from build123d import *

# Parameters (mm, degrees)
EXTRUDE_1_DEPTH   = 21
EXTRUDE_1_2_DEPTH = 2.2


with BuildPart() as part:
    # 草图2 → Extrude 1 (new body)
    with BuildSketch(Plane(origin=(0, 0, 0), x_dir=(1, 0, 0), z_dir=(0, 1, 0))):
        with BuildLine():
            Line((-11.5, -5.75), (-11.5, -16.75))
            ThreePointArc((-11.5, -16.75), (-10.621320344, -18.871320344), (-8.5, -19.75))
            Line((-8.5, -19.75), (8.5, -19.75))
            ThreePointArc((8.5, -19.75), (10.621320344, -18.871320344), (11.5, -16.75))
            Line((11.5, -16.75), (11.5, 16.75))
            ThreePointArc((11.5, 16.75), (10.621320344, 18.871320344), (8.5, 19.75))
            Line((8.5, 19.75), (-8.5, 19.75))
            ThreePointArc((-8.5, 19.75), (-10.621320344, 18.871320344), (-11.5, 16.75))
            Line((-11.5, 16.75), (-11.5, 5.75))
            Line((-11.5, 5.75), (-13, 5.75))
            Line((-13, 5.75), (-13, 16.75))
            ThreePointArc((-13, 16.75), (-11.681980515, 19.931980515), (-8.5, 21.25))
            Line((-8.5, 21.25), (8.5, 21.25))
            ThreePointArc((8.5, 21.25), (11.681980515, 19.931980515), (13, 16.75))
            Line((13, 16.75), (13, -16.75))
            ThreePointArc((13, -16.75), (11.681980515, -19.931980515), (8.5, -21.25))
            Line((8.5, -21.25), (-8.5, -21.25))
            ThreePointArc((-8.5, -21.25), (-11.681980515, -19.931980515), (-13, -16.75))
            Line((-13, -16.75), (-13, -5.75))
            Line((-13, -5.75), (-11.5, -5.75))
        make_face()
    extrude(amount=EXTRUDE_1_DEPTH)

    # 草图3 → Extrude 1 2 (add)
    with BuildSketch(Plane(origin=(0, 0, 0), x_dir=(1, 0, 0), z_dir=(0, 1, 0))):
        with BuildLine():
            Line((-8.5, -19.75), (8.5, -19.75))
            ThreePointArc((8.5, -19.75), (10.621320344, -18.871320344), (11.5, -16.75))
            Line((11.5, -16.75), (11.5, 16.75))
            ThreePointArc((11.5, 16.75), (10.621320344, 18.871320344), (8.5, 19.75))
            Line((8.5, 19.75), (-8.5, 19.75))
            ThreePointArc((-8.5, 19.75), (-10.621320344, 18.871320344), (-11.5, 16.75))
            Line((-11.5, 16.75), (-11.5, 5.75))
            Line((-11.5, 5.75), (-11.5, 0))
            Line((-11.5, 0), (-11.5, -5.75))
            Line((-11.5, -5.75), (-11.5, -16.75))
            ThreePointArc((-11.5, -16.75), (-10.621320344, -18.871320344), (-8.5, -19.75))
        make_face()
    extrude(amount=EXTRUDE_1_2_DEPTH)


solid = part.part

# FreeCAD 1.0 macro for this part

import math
import FreeCAD as App
import Part
import Sketcher

V = App.Vector
Q = App.Units.Quantity

doc = App.newDocument("Part")
body = doc.addObject("PartDesign::Body", "Body")

# Sketch on XZ plane
sketch1 = body.newObject("Sketcher::SketchObject", "Sketch")
sketch1.AttachmentSupport = (doc.getObject("XZ_Plane"), [""])
sketch1.MapMode = "FlatFace"
sketch1.addGeometry(Part.LineSegment(V(-11.5, 16.8, 0), V(-11.5, 5.8, 0)), False)
sketch1.addGeometry(Part.LineSegment(V(-11.5, 5.8, 0), V(-13, 5.8, 0)), False)
sketch1.addGeometry(Part.LineSegment(V(-13, 5.8, 0), V(-13, 16.8, 0)), False)
sketch1.addGeometry(Part.ArcOfCircle(Part.Circle(V(-8.5, 16.7, 0), V(0, 0, 1), 4.5), math.radians(90), math.radians(180)), False)
sketch1.addGeometry(Part.LineSegment(V(-8.5, 21.2, 0), V(8.5, 21.2, 0)), False)
sketch1.addGeometry(Part.ArcOfCircle(Part.Circle(V(8.5, 16.7, 0), V(0, 0, 1), 4.5), math.radians(0), math.radians(90)), False)
sketch1.addGeometry(Part.LineSegment(V(13, 16.8, 0), V(13, -16.8, 0)), False)
sketch1.addGeometry(Part.ArcOfCircle(Part.Circle(V(8.5, -16.7, 0), V(0, 0, 1), 4.5), math.radians(-90), math.radians(0)), False)
sketch1.addGeometry(Part.LineSegment(V(8.5, -21.2, 0), V(-8.5, -21.2, 0)), False)
sketch1.addGeometry(Part.ArcOfCircle(Part.Circle(V(-8.5, -16.7, 0), V(0, 0, 1), 4.5), math.radians(-180), math.radians(-90)), False)
sketch1.addGeometry(Part.LineSegment(V(-13, -16.8, 0), V(-13, -5.8, 0)), False)
sketch1.addGeometry(Part.LineSegment(V(-13, -5.8, 0), V(-11.5, -5.8, 0)), False)
sketch1.addGeometry(Part.LineSegment(V(-11.5, -5.8, 0), V(-11.5, -16.8, 0)), False)
sketch1.addGeometry(Part.ArcOfCircle(Part.Circle(V(-8.5, -16.8, 0), V(0, 0, 1), 3), math.radians(180), math.radians(270)), False)
sketch1.addGeometry(Part.LineSegment(V(-8.5, -19.8, 0), V(8.5, -19.8, 0)), False)
sketch1.addGeometry(Part.ArcOfCircle(Part.Circle(V(8.5, -16.8, 0), V(0, 0, 1), 3), math.radians(-90), math.radians(0)), False)
sketch1.addGeometry(Part.LineSegment(V(11.5, -16.8, 0), V(11.5, 16.8, 0)), False)
sketch1.addGeometry(Part.ArcOfCircle(Part.Circle(V(8.5, 16.8, 0), V(0, 0, 1), 3), math.radians(0), math.radians(90)), False)
sketch1.addGeometry(Part.LineSegment(V(8.5, 19.8, 0), V(-8.5, 19.8, 0)), False)
sketch1.addGeometry(Part.ArcOfCircle(Part.Circle(V(-8.5, 16.8, 0), V(0, 0, 1), 3), math.radians(90), math.radians(180)), False)
sketch1.addConstraint(Sketcher.Constraint("Coincident", 0, 2, 1, 1))
sketch1.addConstraint(Sketcher.Constraint("Coincident", 1, 2, 2, 1))
sketch1.addConstraint(Sketcher.Constraint("Tangent", 2, 2, 3, 2))
sketch1.addConstraint(Sketcher.Constraint("Tangent", 3, 1, 4, 1))
sketch1.addConstraint(Sketcher.Constraint("Tangent", 4, 2, 5, 2))
sketch1.addConstraint(Sketcher.Constraint("Tangent", 5, 1, 6, 1))
sketch1.addConstraint(Sketcher.Constraint("Tangent", 6, 2, 7, 2))
sketch1.addConstraint(Sketcher.Constraint("Tangent", 7, 1, 8, 1))
sketch1.addConstraint(Sketcher.Constraint("Tangent", 8, 2, 9, 2))
sketch1.addConstraint(Sketcher.Constraint("Tangent", 9, 1, 10, 1))
sketch1.addConstraint(Sketcher.Constraint("Coincident", 10, 2, 11, 1))
sketch1.addConstraint(Sketcher.Constraint("Coincident", 11, 2, 12, 1))
sketch1.addConstraint(Sketcher.Constraint("Tangent", 12, 2, 13, 1))
sketch1.addConstraint(Sketcher.Constraint("Tangent", 13, 2, 14, 1))
sketch1.addConstraint(Sketcher.Constraint("Tangent", 14, 2, 15, 1))
sketch1.addConstraint(Sketcher.Constraint("Tangent", 15, 2, 16, 1))
sketch1.addConstraint(Sketcher.Constraint("Tangent", 16, 2, 17, 1))
sketch1.addConstraint(Sketcher.Constraint("Tangent", 17, 2, 18, 1))
sketch1.addConstraint(Sketcher.Constraint("Tangent", 18, 2, 19, 1))
sketch1.addConstraint(Sketcher.Constraint("Tangent", 19, 2, 0, 1))
sketch1.addConstraint(Sketcher.Constraint("Vertical", 0))
sketch1.addConstraint(Sketcher.Constraint("Horizontal", 1))
sketch1.addConstraint(Sketcher.Constraint("Vertical", 2))
sketch1.addConstraint(Sketcher.Constraint("Horizontal", 4))
sketch1.addConstraint(Sketcher.Constraint("Vertical", 6))
sketch1.addConstraint(Sketcher.Constraint("Horizontal", 8))
sketch1.addConstraint(Sketcher.Constraint("Vertical", 10))
sketch1.addConstraint(Sketcher.Constraint("Horizontal", 11))
sketch1.addConstraint(Sketcher.Constraint("Vertical", 12))
sketch1.addConstraint(Sketcher.Constraint("Horizontal", 14))
sketch1.addConstraint(Sketcher.Constraint("Vertical", 16))
sketch1.addConstraint(Sketcher.Constraint("Horizontal", 18))
sketch1.addConstraint(Sketcher.Constraint("Coincident", 13, 3, 9, 3))
sketch1.addConstraint(Sketcher.Constraint("Coincident", 15, 3, 7, 3))
sketch1.addConstraint(Sketcher.Constraint("Coincident", 17, 3, 5, 3))
sketch1.addConstraint(Sketcher.Constraint("Coincident", 19, 3, 3, 3))
sketch1.addConstraint(Sketcher.Constraint("Equal", 3, 5))
sketch1.addConstraint(Sketcher.Constraint("Equal", 5, 7))
sketch1.addConstraint(Sketcher.Constraint("Equal", 7, 9))
sketch1.addConstraint(Sketcher.Constraint("Symmetric", 3, 3, 7, 3, -1, 1))
sketch1.addConstraint(Sketcher.Constraint("Symmetric", 1, 2, 10, 2, -1))
sketch1.addConstraint(Sketcher.Constraint("Radius", 13, Q("3 mm")))
sketch1.addConstraint(Sketcher.Constraint("Radius", 3, Q("4.5 mm")))
sketch1.addConstraint(Sketcher.Constraint("DistanceX", 4, 1, 4, 2, Q("17 mm")))
sketch1.addConstraint(Sketcher.Constraint("DistanceY", 0, 2, 0, 1, Q("11 mm")))
sketch1.addConstraint(Sketcher.Constraint("DistanceY", 6, 2, 6, 1, Q("33.5 mm")))
pad1 = body.newObject("PartDesign::Pad", "Pad")
pad1.Profile = sketch1
pad1.Length = 21
pad1.Reversed = True

# Sketch on XZ plane
sketch2 = body.newObject("Sketcher::SketchObject", "Sketch001")
sketch2.AttachmentSupport = (doc.getObject("XZ_Plane"), [""])
sketch2.MapMode = "FlatFace"
sketch2.addGeometry(Part.LineSegment(V(-8.5, 19.8, 0), V(8.5, 19.8, 0)), False)
sketch2.addGeometry(Part.ArcOfCircle(Part.Circle(V(8.5, 16.8, 0), V(0, 0, 1), 3), math.radians(0), math.radians(90)), False)
sketch2.addGeometry(Part.LineSegment(V(11.5, 16.8, 0), V(11.5, -16.8, 0)), False)
sketch2.addGeometry(Part.ArcOfCircle(Part.Circle(V(8.5, -16.8, 0), V(0, 0, 1), 3), math.radians(-90), math.radians(0)), False)
sketch2.addGeometry(Part.LineSegment(V(8.5, -19.8, 0), V(-8.5, -19.8, 0)), False)
sketch2.addGeometry(Part.ArcOfCircle(Part.Circle(V(-8.5, -16.8, 0), V(0, 0, 1), 3), math.radians(180), math.radians(270)), False)
sketch2.addGeometry(Part.LineSegment(V(-11.5, -16.8, 0), V(-11.5, 16.8, 0)), False)
sketch2.addGeometry(Part.ArcOfCircle(Part.Circle(V(-8.5, 16.8, 0), V(0, 0, 1), 3), math.radians(90), math.radians(180)), False)
sketch2.addConstraint(Sketcher.Constraint("Tangent", 0, 2, 1, 2))
sketch2.addConstraint(Sketcher.Constraint("Tangent", 1, 1, 2, 1))
sketch2.addConstraint(Sketcher.Constraint("Tangent", 2, 2, 3, 2))
sketch2.addConstraint(Sketcher.Constraint("Tangent", 3, 1, 4, 1))
sketch2.addConstraint(Sketcher.Constraint("Tangent", 4, 2, 5, 2))
sketch2.addConstraint(Sketcher.Constraint("Tangent", 5, 1, 6, 1))
sketch2.addConstraint(Sketcher.Constraint("Tangent", 6, 2, 7, 2))
sketch2.addConstraint(Sketcher.Constraint("Tangent", 7, 1, 0, 1))
sketch2.addConstraint(Sketcher.Constraint("Horizontal", 0))
sketch2.addConstraint(Sketcher.Constraint("Vertical", 2))
sketch2.addConstraint(Sketcher.Constraint("Horizontal", 4))
sketch2.addConstraint(Sketcher.Constraint("Vertical", 6))
sketch2.addConstraint(Sketcher.Constraint("Equal", 1, 3))
sketch2.addConstraint(Sketcher.Constraint("Equal", 3, 5))
sketch2.addConstraint(Sketcher.Constraint("Equal", 5, 7))
sketch2.addConstraint(Sketcher.Constraint("Symmetric", 1, 3, 5, 3, -1, 1))
sketch2.addConstraint(Sketcher.Constraint("Radius", 1, Q("3 mm")))
sketch2.addConstraint(Sketcher.Constraint("DistanceX", 0, 1, 0, 2, Q("17 mm")))
sketch2.addConstraint(Sketcher.Constraint("DistanceY", 2, 2, 2, 1, Q("33.5 mm")))
pad2 = body.newObject("PartDesign::Pad", "Pad001")
pad2.Profile = sketch2
pad2.Length = 2.2
pad2.Reversed = True

doc.recompute()
